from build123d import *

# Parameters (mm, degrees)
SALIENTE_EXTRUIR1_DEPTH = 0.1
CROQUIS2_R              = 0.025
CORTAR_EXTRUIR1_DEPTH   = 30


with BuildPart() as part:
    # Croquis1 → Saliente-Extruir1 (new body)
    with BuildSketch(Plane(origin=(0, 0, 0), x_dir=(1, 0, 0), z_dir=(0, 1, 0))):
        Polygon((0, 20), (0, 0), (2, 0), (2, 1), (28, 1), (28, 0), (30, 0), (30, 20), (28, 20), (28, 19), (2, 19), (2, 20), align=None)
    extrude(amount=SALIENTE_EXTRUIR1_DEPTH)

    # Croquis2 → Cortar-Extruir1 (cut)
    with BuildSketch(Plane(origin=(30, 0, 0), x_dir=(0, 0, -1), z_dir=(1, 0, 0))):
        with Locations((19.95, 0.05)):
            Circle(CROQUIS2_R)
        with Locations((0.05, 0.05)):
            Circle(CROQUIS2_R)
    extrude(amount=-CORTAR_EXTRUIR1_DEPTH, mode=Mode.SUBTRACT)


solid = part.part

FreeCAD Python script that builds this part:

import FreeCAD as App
import Part
import Sketcher
Q = App.Units.Quantity


def add_polygon(sketch, points):
    """Adds a closed chain of lines whose ends are joined by coincident constraints."""
    first, n = sketch.GeometryCount, len(points)
    for a, b in zip(points, points[1:] + points[:1]):
        sketch.addGeometry(Part.LineSegment(App.Vector(*a, 0), App.Vector(*b, 0)), False)
    for i in range(n):
        sketch.addConstraint(Sketcher.Constraint("Coincident", first + i, 2, first + (i + 1) % n, 1))

doc = App.newDocument("Part")
body = doc.addObject("PartDesign::Body", "Body")

# Sketch on XZ plane
sketch1 = body.newObject("Sketcher::SketchObject", "Sketch")
sketch1.AttachmentSupport = (doc.getObject("XZ_Plane"), [""])
sketch1.MapMode = "FlatFace"
add_polygon(sketch1, [(0, -20), (0, 0), (2, 0), (2, -1), (28, -1), (28, 0), (30, 0), (30, -20), (28, -20), (28, -19), (2, -19), (2, -20)])  # lines 0-11
sketch1.addConstraint(Sketcher.Constraint("Vertical", 0))
sketch1.addConstraint(Sketcher.Constraint("Horizontal", 1))
sketch1.addConstraint(Sketcher.Constraint("Vertical", 2))
sketch1.addConstraint(Sketcher.Constraint("Horizontal", 3))
sketch1.addConstraint(Sketcher.Constraint("Vertical", 4))
sketch1.addConstraint(Sketcher.Constraint("Horizontal", 5))
sketch1.addConstraint(Sketcher.Constraint("Vertical", 6))
sketch1.addConstraint(Sketcher.Constraint("Horizontal", 7))
sketch1.addConstraint(Sketcher.Constraint("Vertical", 8))
sketch1.addConstraint(Sketcher.Constraint("Horizontal", 9))
sketch1.addConstraint(Sketcher.Constraint("Vertical", 10))
sketch1.addConstraint(Sketcher.Constraint("Horizontal", 11))
sketch1.addConstraint(Sketcher.Constraint("Coincident", 0, 2, -1, 1))
sketch1.addConstraint(Sketcher.Constraint("PointOnObject", 4, 2, -1))
sketch1.addConstraint(Sketcher.Constraint("Horizontal", 7, 2, 10, 2))
sketch1.addConstraint(Sketcher.Constraint("Vertical", 4, 2, 7, 2))
sketch1.addConstraint(Sketcher.Constraint("Vertical", 2, 2, 9, 2))
sketch1.addConstraint(Sketcher.Constraint("Equal", 1, 5))
sketch1.addConstraint(Sketcher.Constraint("Equal", 4, 8))
sketch1.addConstraint(Sketcher.Constraint("DistanceX", 1, 1, 1, 2, Q("2 mm")))
sketch1.addConstraint(Sketcher.Constraint("DistanceX", 3, 1, 3, 2, Q("26 mm")))
sketch1.addConstraint(Sketcher.Constraint("DistanceY", 0, 1, 0, 2, Q("20 mm")))
sketch1.addConstraint(Sketcher.Constraint("DistanceY", 2, 2, 2, 1, Q("1 mm")))
pad1 = body.newObject("PartDesign::Pad", "Pad")
pad1.Profile = sketch1
pad1.Length = 0.1
pad1.Reversed = True

# Sketch on YZ plane
sketch2 = body.newObject("Sketcher::SketchObject", "Sketch001")
sketch2.AttachmentSupport = (doc.getObject("YZ_Plane"), [""])
sketch2.MapMode = "FlatFace"
sketch2.AttachmentOffset = App.Placement(App.Vector(0, 0, 30), App.Rotation())
sketch2.addGeometry(Part.Circle(App.Vector(0.05, -19.95, 0), App.Vector(0, 0, 1), 0.025), False)
sketch2.addGeometry(Part.Circle(App.Vector(0.05, -0.05, 0), App.Vector(0, 0, 1), 0.025), False)
sketch2.addConstraint(Sketcher.Constraint("Equal", 0, 1))
sketch2.addConstraint(Sketcher.Constraint("Vertical", 0, 3, 1, 3))
sketch2.addConstraint(Sketcher.Constraint("Diameter", 0, Q("0.05 mm")))
sketch2.addConstraint(Sketcher.Constraint("DistanceY", 0, 3, 1, 3, Q("19.9 mm")))
sketch2.addConstraint(Sketcher.Constraint("DistanceX", -1, 1, 0, 3, Q("0.05 mm")))
sketch2.addConstraint(Sketcher.Constraint("DistanceY", 0, 3, -1, 1, Q("19.95 mm")))
pocket1 = body.newObject("PartDesign::Pocket", "Pocket")
pocket1.Profile = sketch2
pocket1.Length = 30

doc.recompute()
